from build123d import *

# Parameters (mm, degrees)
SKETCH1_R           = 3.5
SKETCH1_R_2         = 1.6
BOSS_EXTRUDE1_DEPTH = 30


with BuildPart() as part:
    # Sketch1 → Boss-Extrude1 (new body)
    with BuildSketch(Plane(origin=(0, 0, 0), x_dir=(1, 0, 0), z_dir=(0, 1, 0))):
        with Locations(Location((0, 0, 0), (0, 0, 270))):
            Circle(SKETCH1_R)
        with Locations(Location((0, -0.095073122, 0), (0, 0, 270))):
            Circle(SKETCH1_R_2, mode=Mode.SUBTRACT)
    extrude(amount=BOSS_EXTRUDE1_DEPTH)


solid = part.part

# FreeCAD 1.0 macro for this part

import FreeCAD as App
import Part
import Sketcher

V = App.Vector
Q = App.Units.Quantity

doc = App.newDocument("Part")
body = doc.addObject("PartDesign::Body", "Body")

# Sketch on XZ plane
sketch1 = body.newObject("Sketcher::SketchObject", "Sketch")
sketch1.AttachmentSupport = (doc.getObject("XZ_Plane"), [""])
sketch1.MapMode = "FlatFace"
sketch1.addGeometry(Part.Circle(V(0, 0, 0), V(0, 0, 1), 3.5), False)
sketch1.addGeometry(Part.Circle(V(0, 0.095073, 0), V(0, 0, 1), 1.6), False)
sketch1.addConstraint(Sketcher.Constraint("Coincident", 0, 3, -1, 1))
sketch1.addConstraint(Sketcher.Constraint("PointOnObject", 1, 3, -2))
sketch1.addConstraint(Sketcher.Constraint("Diameter", 0, Q("7 mm")))
sketch1.addConstraint(Sketcher.Constraint("Diameter", 1, Q("3.2 mm")))
sketch1.addConstraint(Sketcher.Constraint("DistanceY", -1, 1, 1, 3, Q("0.095073 mm")))
pad1 = body.newObject("PartDesign::Pad", "Pad")
pad1.Profile = sketch1
pad1.Length = 30
pad1.Reversed = True

doc.recompute()
